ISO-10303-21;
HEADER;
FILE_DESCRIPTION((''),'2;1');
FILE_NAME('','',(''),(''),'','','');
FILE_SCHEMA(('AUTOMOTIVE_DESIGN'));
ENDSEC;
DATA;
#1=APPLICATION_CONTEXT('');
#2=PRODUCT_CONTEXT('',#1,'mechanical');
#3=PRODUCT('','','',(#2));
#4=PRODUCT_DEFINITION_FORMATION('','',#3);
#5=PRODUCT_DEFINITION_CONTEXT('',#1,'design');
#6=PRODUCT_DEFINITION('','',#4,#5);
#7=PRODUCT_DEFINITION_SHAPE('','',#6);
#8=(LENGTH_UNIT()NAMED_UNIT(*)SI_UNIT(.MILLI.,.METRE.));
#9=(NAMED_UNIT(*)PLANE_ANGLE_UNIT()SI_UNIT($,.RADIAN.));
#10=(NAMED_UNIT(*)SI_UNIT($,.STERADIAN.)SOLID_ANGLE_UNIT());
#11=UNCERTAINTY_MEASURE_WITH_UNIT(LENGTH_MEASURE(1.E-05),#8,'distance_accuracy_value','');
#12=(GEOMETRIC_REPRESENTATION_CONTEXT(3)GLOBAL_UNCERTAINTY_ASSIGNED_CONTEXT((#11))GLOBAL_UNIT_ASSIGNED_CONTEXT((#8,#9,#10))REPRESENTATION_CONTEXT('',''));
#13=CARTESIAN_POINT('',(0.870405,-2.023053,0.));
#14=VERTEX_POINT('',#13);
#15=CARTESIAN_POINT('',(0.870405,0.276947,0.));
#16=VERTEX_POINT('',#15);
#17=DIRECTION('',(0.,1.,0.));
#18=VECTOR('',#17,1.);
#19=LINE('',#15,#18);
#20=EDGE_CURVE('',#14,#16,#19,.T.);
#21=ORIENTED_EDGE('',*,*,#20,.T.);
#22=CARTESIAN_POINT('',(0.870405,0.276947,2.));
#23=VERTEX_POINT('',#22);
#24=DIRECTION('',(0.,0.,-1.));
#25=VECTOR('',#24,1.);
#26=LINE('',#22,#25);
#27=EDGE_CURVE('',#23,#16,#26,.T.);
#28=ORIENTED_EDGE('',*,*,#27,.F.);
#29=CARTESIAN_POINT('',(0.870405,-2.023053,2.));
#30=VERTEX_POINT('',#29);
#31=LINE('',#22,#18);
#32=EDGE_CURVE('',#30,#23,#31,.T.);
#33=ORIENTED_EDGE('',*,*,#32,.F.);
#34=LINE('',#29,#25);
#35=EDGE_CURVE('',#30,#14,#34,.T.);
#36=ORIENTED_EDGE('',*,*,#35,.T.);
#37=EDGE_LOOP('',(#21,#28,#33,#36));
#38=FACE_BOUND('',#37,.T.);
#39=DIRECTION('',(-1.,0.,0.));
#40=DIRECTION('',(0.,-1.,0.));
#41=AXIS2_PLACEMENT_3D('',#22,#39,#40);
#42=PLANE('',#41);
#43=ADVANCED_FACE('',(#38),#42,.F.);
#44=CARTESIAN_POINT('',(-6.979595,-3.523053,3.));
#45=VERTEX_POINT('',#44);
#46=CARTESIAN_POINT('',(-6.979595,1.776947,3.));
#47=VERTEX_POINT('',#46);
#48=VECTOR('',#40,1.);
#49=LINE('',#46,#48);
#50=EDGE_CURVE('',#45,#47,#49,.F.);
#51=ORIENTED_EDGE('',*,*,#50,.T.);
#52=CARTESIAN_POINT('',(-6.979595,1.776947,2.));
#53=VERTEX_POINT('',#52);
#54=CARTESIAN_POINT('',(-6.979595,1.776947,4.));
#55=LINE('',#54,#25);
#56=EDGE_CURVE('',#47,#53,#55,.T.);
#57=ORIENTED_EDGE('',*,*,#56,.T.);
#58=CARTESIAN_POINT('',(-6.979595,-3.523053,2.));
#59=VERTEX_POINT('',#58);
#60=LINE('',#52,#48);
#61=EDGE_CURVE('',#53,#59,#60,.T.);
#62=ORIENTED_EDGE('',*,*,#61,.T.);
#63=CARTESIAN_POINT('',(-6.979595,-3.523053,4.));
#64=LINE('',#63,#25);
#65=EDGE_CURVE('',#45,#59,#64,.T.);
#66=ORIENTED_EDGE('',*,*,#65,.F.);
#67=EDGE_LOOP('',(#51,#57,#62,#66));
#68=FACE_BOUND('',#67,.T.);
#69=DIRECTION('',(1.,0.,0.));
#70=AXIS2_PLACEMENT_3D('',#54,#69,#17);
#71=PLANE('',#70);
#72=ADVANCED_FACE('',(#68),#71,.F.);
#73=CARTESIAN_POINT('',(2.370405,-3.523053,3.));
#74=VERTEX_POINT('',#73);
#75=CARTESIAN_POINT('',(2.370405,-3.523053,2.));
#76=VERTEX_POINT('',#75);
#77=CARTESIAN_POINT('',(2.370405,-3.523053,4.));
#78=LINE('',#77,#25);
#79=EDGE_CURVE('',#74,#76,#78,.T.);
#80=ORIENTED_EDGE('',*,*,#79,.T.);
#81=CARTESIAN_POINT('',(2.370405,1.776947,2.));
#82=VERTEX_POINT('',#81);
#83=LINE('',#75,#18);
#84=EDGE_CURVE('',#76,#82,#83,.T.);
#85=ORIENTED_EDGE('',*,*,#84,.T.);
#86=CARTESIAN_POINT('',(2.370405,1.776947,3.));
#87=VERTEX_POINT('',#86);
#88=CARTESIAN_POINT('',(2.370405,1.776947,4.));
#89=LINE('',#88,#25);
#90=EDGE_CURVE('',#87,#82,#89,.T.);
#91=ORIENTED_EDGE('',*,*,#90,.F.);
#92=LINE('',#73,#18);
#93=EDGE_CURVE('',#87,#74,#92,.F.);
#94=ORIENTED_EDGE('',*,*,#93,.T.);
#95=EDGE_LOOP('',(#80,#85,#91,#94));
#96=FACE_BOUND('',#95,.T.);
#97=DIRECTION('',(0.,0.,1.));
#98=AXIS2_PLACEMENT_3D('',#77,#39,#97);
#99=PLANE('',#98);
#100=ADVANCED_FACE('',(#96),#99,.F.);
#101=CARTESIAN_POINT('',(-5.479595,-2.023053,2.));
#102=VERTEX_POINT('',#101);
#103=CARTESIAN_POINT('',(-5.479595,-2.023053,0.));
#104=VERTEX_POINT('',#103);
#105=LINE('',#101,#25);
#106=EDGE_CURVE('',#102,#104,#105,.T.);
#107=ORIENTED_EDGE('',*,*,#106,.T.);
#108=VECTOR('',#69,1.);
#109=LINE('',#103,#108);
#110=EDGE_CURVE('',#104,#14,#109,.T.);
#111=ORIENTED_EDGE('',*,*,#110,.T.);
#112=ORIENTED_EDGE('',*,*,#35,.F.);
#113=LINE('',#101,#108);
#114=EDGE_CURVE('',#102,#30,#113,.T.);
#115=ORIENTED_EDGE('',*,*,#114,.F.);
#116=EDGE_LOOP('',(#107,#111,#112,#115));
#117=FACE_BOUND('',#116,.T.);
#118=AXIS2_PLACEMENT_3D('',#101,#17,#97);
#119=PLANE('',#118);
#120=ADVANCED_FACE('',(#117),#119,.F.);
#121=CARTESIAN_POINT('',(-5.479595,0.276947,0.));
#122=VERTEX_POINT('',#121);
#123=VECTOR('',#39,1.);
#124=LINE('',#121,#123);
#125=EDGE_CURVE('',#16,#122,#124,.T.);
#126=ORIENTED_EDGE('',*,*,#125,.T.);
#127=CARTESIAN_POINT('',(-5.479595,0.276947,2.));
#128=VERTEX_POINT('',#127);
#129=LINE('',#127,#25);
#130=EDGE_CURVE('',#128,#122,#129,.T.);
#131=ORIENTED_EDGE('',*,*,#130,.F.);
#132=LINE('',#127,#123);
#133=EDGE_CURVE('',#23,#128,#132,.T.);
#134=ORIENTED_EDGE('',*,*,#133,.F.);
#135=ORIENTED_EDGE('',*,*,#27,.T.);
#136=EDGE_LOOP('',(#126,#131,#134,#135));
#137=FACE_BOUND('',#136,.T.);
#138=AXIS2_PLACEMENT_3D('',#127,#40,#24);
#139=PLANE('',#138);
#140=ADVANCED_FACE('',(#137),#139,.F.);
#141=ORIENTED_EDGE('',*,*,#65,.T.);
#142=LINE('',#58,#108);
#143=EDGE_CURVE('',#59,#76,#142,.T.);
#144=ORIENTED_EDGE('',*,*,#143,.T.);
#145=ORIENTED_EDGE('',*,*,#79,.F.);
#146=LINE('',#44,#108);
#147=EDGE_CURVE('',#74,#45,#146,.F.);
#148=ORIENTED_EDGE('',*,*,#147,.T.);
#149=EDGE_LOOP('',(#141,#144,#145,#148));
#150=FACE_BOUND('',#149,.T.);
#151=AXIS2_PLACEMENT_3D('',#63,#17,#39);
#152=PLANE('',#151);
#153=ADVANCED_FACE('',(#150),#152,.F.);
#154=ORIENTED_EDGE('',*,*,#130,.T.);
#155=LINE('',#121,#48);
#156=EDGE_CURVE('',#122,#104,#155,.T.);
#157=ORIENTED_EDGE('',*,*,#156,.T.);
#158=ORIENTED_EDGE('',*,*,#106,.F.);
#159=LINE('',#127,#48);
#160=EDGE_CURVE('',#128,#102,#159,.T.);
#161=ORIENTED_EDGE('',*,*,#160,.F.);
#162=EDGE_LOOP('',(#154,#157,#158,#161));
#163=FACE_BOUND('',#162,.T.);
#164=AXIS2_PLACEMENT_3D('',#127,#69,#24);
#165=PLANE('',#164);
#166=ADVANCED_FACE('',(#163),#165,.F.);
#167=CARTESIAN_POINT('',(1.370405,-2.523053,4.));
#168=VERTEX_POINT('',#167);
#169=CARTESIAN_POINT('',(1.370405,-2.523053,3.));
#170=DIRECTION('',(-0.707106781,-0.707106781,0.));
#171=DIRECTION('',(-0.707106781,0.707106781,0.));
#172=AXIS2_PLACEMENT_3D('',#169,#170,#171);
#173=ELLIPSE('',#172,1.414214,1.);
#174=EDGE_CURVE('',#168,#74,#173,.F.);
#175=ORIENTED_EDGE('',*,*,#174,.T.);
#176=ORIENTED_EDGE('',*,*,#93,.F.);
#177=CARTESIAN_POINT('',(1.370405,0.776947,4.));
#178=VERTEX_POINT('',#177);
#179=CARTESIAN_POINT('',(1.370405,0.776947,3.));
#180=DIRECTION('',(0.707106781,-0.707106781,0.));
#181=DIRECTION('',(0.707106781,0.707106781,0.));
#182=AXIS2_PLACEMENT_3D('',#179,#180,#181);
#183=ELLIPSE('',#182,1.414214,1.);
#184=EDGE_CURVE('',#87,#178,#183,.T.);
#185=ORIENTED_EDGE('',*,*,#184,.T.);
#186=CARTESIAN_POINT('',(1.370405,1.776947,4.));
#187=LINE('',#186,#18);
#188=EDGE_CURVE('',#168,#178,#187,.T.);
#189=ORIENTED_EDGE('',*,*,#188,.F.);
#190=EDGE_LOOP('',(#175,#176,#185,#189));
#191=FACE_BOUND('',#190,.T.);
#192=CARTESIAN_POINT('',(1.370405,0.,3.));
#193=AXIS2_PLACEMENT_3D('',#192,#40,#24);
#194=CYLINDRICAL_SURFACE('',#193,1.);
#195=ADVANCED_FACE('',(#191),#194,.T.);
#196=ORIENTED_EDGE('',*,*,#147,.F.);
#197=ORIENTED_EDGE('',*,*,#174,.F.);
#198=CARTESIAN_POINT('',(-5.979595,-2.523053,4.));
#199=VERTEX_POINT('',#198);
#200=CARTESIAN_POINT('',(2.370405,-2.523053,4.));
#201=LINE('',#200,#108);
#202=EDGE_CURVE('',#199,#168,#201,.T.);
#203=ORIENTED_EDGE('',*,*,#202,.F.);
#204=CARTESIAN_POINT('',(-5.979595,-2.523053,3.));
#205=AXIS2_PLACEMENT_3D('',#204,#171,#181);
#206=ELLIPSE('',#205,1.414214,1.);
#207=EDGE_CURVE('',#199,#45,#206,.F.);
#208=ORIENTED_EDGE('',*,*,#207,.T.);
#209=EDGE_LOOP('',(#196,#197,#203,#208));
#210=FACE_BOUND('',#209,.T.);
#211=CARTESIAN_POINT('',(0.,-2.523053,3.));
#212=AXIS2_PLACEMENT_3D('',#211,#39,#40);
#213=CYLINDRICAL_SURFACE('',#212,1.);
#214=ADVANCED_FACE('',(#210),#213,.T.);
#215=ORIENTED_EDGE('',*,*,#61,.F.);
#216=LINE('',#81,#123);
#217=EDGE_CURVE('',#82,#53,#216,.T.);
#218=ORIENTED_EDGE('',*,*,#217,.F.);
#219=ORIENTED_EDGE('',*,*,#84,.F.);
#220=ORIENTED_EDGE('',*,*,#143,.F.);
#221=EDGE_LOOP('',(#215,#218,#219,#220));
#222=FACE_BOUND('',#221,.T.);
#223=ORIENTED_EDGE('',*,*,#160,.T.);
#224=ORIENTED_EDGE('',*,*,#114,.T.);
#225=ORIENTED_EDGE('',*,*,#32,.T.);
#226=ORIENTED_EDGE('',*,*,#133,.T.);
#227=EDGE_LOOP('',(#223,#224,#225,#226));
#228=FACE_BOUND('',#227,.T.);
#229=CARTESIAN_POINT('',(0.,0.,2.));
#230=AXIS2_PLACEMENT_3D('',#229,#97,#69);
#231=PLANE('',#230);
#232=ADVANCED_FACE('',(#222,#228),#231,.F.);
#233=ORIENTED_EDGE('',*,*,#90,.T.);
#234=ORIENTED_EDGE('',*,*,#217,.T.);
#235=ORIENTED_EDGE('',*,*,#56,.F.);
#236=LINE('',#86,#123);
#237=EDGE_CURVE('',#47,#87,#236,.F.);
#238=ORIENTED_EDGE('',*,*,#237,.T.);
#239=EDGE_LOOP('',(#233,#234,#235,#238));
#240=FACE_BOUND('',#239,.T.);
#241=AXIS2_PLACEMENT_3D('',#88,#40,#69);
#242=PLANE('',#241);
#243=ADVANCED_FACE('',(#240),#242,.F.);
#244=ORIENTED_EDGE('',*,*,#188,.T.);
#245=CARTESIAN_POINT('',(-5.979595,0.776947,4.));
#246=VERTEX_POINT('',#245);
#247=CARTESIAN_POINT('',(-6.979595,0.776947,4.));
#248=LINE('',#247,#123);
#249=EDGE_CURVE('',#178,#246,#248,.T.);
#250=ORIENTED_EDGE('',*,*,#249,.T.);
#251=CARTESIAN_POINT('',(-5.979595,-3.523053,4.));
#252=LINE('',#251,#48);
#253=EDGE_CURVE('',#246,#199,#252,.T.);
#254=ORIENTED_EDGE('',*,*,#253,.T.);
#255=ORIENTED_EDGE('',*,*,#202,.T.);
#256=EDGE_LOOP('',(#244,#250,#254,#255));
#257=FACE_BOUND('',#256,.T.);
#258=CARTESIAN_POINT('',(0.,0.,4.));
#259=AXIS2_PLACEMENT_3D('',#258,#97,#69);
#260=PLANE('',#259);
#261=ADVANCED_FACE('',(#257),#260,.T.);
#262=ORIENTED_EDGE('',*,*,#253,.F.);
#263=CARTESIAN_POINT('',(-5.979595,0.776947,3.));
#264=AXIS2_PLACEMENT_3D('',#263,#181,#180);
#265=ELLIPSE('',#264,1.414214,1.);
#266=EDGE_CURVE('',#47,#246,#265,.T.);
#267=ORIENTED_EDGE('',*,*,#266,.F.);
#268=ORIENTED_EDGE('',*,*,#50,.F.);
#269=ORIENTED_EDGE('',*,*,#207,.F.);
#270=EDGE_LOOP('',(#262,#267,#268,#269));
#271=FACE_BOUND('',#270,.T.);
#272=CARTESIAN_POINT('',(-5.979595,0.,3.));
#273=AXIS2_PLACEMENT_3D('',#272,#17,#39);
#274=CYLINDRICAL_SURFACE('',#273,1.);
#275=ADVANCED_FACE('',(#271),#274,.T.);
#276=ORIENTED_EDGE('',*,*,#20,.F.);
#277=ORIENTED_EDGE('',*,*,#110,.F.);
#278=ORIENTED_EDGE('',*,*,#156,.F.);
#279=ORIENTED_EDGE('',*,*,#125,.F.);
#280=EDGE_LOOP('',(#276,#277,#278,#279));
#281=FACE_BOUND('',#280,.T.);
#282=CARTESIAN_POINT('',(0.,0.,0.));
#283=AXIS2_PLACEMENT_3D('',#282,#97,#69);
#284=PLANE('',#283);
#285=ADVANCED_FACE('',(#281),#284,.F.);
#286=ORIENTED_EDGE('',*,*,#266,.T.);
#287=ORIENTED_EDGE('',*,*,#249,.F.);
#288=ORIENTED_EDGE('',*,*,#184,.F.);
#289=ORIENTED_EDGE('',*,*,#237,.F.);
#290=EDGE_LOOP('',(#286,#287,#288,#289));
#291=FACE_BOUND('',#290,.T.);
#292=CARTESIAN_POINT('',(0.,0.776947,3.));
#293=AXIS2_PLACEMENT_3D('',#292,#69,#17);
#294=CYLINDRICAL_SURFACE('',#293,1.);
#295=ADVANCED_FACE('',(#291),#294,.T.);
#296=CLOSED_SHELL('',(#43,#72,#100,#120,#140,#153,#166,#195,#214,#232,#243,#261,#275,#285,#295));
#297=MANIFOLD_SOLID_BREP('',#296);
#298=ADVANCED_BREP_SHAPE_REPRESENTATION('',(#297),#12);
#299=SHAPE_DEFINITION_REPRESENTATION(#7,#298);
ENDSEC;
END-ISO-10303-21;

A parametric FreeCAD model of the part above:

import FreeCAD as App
import Part
import Sketcher
Q = App.Units.Quantity


def edges_at(feature, points):
    """Names of the edges that pass closest to the given points."""
    edges = feature.Shape.Edges
    near = lambda p: min(range(len(edges)), key=lambda i: edges[i].distToShape(Part.Vertex(*p))[0])
    return sorted({f"Edge{near(p) + 1}" for p in points})

doc = App.newDocument("Part")
body = doc.addObject("PartDesign::Body", "Body")

sketch1 = body.newObject("Sketcher::SketchObject", "Sketch")
sketch1.AttachmentSupport = (doc.getObject("XY_Plane"), [""])
sketch1.MapMode = "FlatFace"
sketch1.addGeometry(Part.LineSegment(App.Vector(-5.479595, 0.276947, 0), App.Vector(-5.479595, -2.023053, 0)), False)
sketch1.addGeometry(Part.LineSegment(App.Vector(-5.479595, -2.023053, 0), App.Vector(0.870405, -2.023053, 0)), False)
sketch1.addGeometry(Part.LineSegment(App.Vector(0.870405, -2.023053, 0), App.Vector(0.870405, 0.276947, 0)), False)
sketch1.addGeometry(Part.LineSegment(App.Vector(0.870405, 0.276947, 0), App.Vector(-5.479595, 0.276947, 0)), False)
sketch1.addConstraint(Sketcher.Constraint("Coincident", 0, 2, 1, 1))
sketch1.addConstraint(Sketcher.Constraint("Coincident", 1, 2, 2, 1))
sketch1.addConstraint(Sketcher.Constraint("Coincident", 2, 2, 3, 1))
sketch1.addConstraint(Sketcher.Constraint("Coincident", 3, 2, 0, 1))
sketch1.addConstraint(Sketcher.Constraint("Vertical", 0))
sketch1.addConstraint(Sketcher.Constraint("Horizontal", 1))
sketch1.addConstraint(Sketcher.Constraint("Vertical", 2))
sketch1.addConstraint(Sketcher.Constraint("Horizontal", 3))
sketch1.addConstraint(Sketcher.Constraint("DistanceY", 0, 2, 0, 1, Q("2.3 mm")))
sketch1.addConstraint(Sketcher.Constraint("DistanceX", 1, 1, 1, 2, Q("6.35 mm")))
sketch1.addConstraint(Sketcher.Constraint("DistanceX", 0, 2, -1, 1, Q("5.479595 mm")))
sketch1.addConstraint(Sketcher.Constraint("DistanceY", 0, 2, -1, 1, Q("2.023053 mm")))
pad1 = body.newObject("PartDesign::Pad", "Pad")
pad1.Profile = sketch1
pad1.Length = 2

sketch2 = body.newObject("Sketcher::SketchObject", "Sketch001")
sketch2.AttachmentSupport = (doc.getObject("XY_Plane"), [""])
sketch2.MapMode = "FlatFace"
sketch2.AttachmentOffset = App.Placement(App.Vector(0, 0, 2), App.Rotation())
sketch2.addGeometry(Part.LineSegment(App.Vector(-6.979595, 1.776947, 0), App.Vector(-6.979595, -3.523053, 0)), False)
sketch2.addGeometry(Part.LineSegment(App.Vector(-6.979595, -3.523053, 0), App.Vector(2.370405, -3.523053, 0)), False)
sketch2.addGeometry(Part.LineSegment(App.Vector(2.370405, -3.523053, 0), App.Vector(2.370405, 1.776947, 0)), False)
sketch2.addGeometry(Part.LineSegment(App.Vector(2.370405, 1.776947, 0), App.Vector(-6.979595, 1.776947, 0)), False)
sketch2.addConstraint(Sketcher.Constraint("Coincident", 0, 2, 1, 1))
sketch2.addConstraint(Sketcher.Constraint("Coincident", 1, 2, 2, 1))
sketch2.addConstraint(Sketcher.Constraint("Coincident", 2, 2, 3, 1))
sketch2.addConstraint(Sketcher.Constraint("Coincident", 3, 2, 0, 1))
sketch2.addConstraint(Sketcher.Constraint("Vertical", 0))
sketch2.addConstraint(Sketcher.Constraint("Horizontal", 1))
sketch2.addConstraint(Sketcher.Constraint("Vertical", 2))
sketch2.addConstraint(Sketcher.Constraint("Horizontal", 3))
sketch2.addConstraint(Sketcher.Constraint("DistanceY", 0, 2, 0, 1, Q("5.3 mm")))
sketch2.addConstraint(Sketcher.Constraint("DistanceX", 1, 1, 1, 2, Q("9.35 mm")))
sketch2.addConstraint(Sketcher.Constraint("DistanceX", 0, 2, -1, 1, Q("6.979595 mm")))
sketch2.addConstraint(Sketcher.Constraint("DistanceY", 0, 2, -1, 1, Q("3.523053 mm")))
pad2 = body.newObject("PartDesign::Pad", "Pad001")
pad2.Profile = sketch2
pad2.Length = 2
doc.recompute()

fillet = body.newObject("PartDesign::Fillet", "Fillet")
fillet.Base = (pad2, edges_at(pad2, [
    (2.37, -0.873, 4),
    (-2.305, 1.777, 4),
    (-6.98, -0.873, 4),
    (-2.305, -3.523, 4),
]))
fillet.Radius = 1

doc.recompute()
